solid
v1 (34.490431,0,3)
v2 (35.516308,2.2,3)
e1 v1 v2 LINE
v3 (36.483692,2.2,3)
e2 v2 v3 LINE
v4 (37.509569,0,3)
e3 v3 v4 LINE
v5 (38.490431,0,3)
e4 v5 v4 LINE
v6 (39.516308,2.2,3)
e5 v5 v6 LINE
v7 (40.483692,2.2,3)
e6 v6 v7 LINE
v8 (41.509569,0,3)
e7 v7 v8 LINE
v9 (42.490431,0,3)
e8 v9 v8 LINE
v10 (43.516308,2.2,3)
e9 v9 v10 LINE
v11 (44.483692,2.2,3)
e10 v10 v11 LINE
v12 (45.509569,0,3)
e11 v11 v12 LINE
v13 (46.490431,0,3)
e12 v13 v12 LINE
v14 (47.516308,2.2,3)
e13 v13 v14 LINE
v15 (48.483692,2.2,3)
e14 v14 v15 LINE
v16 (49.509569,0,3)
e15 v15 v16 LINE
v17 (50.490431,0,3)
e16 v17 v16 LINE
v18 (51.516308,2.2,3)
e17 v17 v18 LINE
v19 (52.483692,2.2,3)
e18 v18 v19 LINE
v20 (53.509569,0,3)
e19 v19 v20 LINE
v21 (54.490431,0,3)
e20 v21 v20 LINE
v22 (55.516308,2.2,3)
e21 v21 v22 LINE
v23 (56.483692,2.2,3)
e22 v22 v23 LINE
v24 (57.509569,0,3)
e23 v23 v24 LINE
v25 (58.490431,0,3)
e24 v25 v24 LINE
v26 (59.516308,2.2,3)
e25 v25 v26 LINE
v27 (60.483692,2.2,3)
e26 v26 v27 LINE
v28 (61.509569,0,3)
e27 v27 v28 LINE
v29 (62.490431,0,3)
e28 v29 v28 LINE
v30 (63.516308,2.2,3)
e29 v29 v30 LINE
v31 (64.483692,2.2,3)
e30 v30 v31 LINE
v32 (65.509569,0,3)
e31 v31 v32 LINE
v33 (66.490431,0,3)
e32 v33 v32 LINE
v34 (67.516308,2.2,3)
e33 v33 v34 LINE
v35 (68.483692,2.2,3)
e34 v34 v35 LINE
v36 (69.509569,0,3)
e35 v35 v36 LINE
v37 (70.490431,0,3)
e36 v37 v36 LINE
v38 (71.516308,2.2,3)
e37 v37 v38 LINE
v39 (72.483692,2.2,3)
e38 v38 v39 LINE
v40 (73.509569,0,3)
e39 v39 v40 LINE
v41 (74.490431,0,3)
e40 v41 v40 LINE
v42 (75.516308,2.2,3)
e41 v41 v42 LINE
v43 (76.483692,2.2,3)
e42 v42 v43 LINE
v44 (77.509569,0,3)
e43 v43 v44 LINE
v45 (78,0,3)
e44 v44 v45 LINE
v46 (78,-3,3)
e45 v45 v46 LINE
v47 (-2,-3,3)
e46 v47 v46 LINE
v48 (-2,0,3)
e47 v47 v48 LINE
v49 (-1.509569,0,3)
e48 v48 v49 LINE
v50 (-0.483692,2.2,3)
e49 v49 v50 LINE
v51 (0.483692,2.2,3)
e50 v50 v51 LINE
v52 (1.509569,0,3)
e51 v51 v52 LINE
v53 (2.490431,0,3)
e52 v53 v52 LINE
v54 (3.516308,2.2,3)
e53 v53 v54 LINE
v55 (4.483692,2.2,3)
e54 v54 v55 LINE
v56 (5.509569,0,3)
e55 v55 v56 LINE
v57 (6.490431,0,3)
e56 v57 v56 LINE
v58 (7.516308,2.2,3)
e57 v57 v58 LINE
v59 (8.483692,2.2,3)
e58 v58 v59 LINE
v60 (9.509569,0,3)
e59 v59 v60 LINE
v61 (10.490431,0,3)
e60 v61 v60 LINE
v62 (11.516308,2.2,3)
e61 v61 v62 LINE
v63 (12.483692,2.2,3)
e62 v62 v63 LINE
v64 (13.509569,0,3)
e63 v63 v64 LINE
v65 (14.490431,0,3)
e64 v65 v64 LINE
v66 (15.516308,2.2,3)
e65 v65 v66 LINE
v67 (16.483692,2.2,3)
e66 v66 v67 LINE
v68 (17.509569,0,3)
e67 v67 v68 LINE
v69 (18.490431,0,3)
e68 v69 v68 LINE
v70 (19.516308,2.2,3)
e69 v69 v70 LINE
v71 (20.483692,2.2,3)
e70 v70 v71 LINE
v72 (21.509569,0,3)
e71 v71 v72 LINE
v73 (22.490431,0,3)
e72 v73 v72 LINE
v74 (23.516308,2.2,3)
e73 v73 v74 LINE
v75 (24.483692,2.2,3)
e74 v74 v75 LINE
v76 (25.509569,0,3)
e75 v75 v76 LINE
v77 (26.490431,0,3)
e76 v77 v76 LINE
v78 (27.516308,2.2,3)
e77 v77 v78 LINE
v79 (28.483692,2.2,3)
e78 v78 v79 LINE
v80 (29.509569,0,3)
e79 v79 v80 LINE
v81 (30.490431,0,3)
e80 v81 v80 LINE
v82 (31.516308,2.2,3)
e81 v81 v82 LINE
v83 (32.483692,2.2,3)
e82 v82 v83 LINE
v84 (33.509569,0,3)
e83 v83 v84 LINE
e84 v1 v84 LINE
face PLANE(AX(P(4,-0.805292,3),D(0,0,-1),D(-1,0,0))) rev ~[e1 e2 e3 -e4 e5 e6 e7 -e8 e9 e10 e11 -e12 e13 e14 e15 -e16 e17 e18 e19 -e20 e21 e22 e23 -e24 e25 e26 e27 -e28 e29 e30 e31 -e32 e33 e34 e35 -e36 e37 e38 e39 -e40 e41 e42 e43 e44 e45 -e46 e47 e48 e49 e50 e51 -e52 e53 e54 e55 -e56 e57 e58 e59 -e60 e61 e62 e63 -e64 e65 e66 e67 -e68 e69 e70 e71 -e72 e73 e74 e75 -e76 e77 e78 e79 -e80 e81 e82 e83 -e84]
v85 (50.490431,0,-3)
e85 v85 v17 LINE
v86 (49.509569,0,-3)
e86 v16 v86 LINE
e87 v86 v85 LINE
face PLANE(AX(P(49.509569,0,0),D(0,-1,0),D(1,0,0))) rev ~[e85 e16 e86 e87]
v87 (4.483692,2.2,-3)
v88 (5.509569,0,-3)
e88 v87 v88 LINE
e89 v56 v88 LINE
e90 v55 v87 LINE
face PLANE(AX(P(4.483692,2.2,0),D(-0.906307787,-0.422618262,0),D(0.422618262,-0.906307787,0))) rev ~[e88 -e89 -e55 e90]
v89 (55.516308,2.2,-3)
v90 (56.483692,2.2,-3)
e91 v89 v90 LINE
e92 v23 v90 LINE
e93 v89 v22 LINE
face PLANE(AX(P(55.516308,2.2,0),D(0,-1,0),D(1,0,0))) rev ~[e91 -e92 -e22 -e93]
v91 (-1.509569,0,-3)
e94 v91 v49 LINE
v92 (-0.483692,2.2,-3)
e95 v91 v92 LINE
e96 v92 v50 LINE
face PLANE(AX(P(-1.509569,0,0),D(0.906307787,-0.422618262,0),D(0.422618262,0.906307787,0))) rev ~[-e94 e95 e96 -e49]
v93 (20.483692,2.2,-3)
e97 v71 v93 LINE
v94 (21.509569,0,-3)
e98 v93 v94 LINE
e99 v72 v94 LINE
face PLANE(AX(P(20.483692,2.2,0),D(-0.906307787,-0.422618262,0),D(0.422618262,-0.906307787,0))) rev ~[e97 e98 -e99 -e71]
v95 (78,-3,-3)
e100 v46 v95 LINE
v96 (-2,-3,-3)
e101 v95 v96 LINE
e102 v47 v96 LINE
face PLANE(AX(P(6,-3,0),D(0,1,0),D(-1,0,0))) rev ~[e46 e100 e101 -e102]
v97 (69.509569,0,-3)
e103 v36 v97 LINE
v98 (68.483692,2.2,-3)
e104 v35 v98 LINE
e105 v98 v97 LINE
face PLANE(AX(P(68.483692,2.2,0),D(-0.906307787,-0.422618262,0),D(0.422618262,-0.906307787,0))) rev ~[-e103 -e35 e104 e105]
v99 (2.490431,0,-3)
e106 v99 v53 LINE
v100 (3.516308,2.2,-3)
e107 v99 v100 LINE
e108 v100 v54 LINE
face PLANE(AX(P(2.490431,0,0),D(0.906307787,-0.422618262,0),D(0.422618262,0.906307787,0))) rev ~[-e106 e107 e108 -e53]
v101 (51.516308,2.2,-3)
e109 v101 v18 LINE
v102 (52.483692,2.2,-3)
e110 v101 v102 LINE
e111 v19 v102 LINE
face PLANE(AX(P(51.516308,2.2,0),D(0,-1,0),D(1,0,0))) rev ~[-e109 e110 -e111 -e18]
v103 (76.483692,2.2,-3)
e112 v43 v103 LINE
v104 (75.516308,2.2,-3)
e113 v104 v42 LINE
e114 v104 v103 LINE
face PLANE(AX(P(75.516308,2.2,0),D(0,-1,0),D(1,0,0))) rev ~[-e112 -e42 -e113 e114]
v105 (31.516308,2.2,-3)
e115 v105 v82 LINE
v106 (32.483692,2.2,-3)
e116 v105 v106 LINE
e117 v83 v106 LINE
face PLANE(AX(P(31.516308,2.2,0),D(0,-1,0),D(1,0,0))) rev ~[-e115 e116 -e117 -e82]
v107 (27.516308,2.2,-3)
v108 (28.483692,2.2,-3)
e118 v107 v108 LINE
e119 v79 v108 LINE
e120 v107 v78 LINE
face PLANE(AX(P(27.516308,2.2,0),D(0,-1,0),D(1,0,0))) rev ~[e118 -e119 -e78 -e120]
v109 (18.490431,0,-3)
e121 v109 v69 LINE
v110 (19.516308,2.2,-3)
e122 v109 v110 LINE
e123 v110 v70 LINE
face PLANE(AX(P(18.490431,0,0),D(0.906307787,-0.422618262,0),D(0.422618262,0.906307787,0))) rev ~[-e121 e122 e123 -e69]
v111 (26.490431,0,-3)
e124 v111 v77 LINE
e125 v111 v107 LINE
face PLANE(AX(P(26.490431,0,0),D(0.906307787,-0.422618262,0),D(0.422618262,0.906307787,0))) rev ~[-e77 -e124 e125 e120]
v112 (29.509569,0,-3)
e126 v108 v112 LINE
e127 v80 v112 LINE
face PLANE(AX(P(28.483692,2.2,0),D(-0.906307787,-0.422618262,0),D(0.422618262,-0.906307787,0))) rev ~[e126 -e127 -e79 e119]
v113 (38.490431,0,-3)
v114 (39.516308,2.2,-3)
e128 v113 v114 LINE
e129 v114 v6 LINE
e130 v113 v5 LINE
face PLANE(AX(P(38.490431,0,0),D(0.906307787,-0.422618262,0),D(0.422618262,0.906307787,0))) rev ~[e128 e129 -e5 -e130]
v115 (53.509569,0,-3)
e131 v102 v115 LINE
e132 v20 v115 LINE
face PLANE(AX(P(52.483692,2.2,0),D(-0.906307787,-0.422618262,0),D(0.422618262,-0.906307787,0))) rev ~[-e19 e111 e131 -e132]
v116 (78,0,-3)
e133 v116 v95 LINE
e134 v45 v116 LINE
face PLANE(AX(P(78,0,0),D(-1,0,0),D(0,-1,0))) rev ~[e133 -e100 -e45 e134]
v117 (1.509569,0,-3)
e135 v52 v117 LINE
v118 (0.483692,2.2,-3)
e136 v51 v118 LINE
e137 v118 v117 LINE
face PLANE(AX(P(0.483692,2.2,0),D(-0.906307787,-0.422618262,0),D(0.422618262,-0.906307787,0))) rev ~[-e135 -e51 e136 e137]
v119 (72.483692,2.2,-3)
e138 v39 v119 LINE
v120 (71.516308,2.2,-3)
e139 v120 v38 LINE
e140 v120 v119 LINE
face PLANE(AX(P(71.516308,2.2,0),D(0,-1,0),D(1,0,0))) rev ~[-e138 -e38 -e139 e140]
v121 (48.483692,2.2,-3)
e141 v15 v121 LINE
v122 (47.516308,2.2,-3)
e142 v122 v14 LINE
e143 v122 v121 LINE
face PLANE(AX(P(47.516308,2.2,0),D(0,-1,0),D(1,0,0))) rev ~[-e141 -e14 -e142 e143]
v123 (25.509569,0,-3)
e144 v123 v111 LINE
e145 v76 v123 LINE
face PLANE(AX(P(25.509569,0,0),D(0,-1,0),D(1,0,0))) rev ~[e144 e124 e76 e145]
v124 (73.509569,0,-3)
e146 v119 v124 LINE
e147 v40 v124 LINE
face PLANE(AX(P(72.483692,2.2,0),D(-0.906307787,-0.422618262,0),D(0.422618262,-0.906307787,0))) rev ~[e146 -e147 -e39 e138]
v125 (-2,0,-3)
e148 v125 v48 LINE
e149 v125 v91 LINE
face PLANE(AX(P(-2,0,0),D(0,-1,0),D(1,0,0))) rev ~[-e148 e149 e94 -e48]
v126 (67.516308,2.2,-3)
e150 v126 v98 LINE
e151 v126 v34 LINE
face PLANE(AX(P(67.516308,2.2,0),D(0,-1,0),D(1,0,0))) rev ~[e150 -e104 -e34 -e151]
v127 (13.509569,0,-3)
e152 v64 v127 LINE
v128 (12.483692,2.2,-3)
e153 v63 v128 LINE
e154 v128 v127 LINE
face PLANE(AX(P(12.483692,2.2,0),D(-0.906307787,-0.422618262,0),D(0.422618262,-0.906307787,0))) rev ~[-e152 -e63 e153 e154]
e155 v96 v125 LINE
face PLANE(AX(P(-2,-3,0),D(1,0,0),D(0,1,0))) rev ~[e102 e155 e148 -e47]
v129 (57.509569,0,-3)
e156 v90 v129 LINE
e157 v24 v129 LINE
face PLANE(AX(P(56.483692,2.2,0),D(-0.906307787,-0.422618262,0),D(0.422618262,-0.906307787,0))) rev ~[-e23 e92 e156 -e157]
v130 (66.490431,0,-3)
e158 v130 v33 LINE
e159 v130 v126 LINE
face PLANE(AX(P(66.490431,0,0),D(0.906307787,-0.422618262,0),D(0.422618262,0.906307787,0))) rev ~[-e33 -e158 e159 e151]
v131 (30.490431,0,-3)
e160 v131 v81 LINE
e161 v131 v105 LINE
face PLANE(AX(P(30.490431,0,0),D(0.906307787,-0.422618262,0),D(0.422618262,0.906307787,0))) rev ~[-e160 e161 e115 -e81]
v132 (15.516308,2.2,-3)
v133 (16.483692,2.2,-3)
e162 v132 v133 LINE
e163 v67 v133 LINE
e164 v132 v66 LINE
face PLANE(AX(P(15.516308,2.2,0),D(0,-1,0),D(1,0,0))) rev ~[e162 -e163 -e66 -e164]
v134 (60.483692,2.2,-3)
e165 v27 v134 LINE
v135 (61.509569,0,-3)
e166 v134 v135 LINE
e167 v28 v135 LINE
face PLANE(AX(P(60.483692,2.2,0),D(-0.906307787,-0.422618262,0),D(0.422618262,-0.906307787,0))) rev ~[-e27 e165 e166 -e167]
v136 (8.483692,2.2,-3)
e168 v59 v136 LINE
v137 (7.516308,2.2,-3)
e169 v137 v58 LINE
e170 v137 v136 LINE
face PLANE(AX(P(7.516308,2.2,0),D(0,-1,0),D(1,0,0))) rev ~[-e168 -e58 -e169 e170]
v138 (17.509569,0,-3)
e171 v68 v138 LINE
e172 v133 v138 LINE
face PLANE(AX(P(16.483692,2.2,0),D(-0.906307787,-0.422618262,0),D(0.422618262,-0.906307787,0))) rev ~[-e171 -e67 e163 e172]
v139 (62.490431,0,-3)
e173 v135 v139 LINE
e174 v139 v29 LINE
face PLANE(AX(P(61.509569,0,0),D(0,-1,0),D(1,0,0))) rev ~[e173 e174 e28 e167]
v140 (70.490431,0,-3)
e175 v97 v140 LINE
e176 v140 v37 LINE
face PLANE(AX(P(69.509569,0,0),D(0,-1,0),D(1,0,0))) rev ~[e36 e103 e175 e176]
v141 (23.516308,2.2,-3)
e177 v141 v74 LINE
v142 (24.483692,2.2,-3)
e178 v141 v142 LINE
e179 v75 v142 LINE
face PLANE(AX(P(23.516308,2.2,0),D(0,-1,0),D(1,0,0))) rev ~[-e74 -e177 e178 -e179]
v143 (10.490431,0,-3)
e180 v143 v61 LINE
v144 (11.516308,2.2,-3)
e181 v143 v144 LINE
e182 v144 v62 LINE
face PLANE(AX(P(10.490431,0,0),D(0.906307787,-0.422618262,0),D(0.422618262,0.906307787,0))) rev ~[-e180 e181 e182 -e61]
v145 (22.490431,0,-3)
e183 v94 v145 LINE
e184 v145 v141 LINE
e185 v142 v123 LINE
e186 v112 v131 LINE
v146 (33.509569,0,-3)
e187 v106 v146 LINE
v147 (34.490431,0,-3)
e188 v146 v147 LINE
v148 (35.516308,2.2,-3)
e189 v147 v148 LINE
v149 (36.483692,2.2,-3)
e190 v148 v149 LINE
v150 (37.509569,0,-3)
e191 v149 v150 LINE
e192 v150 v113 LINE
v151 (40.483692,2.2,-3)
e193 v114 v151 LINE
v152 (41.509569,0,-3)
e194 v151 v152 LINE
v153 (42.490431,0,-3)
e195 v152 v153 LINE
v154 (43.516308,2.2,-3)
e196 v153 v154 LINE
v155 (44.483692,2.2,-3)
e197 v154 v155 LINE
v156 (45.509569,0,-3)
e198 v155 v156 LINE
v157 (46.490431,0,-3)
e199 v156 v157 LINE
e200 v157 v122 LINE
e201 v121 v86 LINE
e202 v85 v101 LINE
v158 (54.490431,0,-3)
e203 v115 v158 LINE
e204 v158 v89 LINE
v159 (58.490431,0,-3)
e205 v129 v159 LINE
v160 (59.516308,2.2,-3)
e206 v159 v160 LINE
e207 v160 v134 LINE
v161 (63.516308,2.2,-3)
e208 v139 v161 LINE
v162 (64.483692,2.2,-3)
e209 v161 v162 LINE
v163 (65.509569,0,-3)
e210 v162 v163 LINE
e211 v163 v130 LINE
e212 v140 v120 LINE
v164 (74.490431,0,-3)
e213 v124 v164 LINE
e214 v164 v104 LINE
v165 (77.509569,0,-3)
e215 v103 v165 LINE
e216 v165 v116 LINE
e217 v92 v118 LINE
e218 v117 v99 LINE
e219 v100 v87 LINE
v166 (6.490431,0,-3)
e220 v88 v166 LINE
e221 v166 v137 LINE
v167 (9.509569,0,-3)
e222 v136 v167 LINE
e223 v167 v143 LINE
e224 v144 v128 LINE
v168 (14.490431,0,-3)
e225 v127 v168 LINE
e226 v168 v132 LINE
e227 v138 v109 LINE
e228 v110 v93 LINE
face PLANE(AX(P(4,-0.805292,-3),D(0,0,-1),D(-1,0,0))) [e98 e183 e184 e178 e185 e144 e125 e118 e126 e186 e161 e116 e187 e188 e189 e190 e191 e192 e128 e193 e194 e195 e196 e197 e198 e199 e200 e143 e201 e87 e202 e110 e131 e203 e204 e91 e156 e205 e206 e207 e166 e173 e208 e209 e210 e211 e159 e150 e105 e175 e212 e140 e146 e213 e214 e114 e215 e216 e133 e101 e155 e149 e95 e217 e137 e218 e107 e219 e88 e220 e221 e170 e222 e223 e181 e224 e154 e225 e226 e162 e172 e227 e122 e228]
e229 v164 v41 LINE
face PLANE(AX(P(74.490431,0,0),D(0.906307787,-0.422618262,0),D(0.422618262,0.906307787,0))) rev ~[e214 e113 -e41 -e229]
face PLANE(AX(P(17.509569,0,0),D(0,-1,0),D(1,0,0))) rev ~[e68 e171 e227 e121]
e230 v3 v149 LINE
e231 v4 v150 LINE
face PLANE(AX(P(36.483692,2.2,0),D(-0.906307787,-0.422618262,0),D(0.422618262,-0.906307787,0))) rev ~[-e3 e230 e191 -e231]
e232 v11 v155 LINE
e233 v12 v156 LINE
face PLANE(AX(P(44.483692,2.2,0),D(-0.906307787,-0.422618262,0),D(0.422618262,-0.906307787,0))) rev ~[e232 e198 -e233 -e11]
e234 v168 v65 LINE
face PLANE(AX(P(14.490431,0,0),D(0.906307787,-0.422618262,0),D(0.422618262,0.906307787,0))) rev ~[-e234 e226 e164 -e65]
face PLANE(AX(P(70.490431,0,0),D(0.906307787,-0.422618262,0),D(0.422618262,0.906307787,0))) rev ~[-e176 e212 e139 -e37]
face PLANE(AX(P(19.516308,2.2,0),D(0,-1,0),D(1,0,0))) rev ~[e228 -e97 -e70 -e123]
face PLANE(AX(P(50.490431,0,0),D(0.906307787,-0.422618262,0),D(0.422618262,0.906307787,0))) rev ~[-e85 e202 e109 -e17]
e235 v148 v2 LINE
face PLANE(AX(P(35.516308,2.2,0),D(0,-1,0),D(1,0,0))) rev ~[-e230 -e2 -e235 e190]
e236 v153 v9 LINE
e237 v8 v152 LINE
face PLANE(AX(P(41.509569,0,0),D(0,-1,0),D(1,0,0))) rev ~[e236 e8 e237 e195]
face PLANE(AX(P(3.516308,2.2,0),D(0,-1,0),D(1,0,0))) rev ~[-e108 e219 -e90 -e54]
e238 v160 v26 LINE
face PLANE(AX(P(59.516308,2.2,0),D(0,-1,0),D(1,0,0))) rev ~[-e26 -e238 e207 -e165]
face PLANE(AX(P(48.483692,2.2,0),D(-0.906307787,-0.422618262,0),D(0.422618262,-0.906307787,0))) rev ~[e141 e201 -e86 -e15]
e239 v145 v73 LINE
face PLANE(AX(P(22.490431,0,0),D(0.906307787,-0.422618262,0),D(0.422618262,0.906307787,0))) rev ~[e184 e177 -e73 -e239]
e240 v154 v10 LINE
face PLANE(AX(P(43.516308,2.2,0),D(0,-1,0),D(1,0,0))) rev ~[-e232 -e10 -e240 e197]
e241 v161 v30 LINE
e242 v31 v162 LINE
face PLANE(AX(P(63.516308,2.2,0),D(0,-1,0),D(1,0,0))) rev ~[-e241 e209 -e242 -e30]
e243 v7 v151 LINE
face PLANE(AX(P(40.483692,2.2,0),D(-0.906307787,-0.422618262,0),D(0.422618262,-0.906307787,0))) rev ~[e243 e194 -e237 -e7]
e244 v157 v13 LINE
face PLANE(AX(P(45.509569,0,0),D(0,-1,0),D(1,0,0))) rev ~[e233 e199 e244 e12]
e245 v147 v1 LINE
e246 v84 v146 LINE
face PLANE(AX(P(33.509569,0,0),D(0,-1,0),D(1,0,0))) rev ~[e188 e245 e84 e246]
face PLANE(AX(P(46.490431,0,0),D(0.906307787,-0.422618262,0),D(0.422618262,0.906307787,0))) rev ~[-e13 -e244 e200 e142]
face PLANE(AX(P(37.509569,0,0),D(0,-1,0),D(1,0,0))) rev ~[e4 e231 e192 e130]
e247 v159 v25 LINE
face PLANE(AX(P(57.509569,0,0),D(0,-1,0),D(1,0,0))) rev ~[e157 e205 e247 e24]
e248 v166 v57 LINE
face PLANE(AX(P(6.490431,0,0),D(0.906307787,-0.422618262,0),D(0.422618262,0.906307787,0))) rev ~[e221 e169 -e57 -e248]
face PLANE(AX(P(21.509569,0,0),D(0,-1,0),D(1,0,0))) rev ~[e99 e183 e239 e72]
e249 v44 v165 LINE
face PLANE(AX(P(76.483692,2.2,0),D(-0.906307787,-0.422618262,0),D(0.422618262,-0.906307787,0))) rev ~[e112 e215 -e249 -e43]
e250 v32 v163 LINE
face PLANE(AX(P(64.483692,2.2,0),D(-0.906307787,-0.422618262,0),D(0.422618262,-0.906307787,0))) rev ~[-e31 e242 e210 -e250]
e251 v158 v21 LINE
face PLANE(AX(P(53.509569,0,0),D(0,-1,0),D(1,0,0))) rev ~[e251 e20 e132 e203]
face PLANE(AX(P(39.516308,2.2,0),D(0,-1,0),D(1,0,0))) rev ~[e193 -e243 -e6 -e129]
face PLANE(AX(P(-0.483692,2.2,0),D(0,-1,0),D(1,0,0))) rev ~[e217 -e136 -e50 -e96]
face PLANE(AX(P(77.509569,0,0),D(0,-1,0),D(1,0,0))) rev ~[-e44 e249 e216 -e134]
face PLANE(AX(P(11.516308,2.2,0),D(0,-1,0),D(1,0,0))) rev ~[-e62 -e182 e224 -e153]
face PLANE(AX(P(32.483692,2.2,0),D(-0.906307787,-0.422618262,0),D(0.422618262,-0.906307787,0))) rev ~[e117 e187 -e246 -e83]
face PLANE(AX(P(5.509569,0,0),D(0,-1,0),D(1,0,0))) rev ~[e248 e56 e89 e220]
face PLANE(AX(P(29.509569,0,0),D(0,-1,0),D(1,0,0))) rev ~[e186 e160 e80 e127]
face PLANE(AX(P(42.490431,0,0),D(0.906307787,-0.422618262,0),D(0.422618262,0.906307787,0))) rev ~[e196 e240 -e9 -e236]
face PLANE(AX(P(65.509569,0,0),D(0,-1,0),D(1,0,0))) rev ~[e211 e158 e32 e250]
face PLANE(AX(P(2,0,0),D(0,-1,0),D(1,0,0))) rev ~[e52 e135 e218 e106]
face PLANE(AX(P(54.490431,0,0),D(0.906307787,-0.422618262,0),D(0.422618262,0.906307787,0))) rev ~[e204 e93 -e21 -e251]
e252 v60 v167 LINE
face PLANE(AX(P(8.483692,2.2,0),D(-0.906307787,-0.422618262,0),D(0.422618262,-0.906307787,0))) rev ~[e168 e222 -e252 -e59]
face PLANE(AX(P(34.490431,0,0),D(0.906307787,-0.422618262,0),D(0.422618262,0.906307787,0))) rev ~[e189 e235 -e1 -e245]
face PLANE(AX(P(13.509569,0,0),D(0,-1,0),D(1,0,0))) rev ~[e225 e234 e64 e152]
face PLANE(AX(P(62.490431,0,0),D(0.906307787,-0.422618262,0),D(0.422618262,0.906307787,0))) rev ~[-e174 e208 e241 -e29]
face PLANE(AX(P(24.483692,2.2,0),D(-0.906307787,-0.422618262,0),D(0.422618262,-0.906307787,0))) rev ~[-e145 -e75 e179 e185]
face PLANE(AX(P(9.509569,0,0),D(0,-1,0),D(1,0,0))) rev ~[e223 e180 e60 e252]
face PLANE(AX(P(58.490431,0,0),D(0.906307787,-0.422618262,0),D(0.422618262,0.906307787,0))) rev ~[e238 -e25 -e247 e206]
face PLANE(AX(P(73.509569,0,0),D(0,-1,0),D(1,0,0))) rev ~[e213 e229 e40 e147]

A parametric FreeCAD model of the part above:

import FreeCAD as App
import Part
import Sketcher
from FreeCAD import Vector
Q = App.Units.Quantity


def add_polygon(sketch, points):
    """Adds a closed chain of lines whose ends are joined by coincident constraints."""
    first, n = sketch.GeometryCount, len(points)
    for a, b in zip(points, points[1:] + points[:1]):
        sketch.addGeometry(Part.LineSegment(App.Vector(*a, 0), App.Vector(*b, 0)), False)
    for i in range(n):
        sketch.addConstraint(Sketcher.Constraint("Coincident", first + i, 2, first + (i + 1) % n, 1))

doc = App.newDocument("Part")
body = doc.addObject("PartDesign::Body", "Body")

# Sketch on XY plane
sketch1 = doc.addObject("Sketcher::SketchObject", "Sketch")
body.addObject(sketch1)
sketch1.AttachmentSupport = (doc.XY_Plane, [""])
sketch1.MapMode = "FlatFace"
add_polygon(sketch1, [(0.483692, 2.2), (-0.483692, 2.2), (-1.509569, 0), (-2, 0), (-2, -3), (2, -3), (2, 0), (1.509569, 0)])  # lines 0-7
sketch1.addConstraint(Sketcher.Constraint("Horizontal", 0))
sketch1.addConstraint(Sketcher.Constraint("Horizontal", 2))
sketch1.addConstraint(Sketcher.Constraint("Vertical", 3))
sketch1.addConstraint(Sketcher.Constraint("Horizontal", 4))
sketch1.addConstraint(Sketcher.Constraint("Vertical", 5))
sketch1.addConstraint(Sketcher.Constraint("Horizontal", 6))
sketch1.addConstraint(Sketcher.Constraint("Symmetric", 2, 2, 5, 2, -1, 1))
sketch1.addConstraint(Sketcher.Constraint("Symmetric", 1, 2, 6, 2, -2))
sketch1.addConstraint(Sketcher.Constraint("Equal", 1, 7))
sketch1.addConstraint(Sketcher.Constraint("DistanceX", 4, 1, 4, 2, Q("4 mm")))
sketch1.addConstraint(Sketcher.Constraint("DistanceY", 3, 2, 3, 1, Q("3 mm")))
sketch1.addConstraint(Sketcher.Constraint("Angle", 1, Q("-115 deg")))
sketch1.addConstraint(Sketcher.Constraint("DistanceY", -1, 1, 0, 2, Q("2.2 mm")))
sketch1.addConstraint(Sketcher.Constraint("DistanceX", 2, 2, 2, 1, Q("0.490431 mm")))
pad1 = doc.addObject("PartDesign::Pad", "Pad")
body.addObject(pad1)
pad1.Profile = sketch1
pad1.Length = 6
pad1.Midplane = True
doc.recompute()

linearpattern = doc.addObject("PartDesign::LinearPattern", "LinearPattern")
body.addObject(linearpattern)
linearpattern.Originals = [pad1]
linearpattern.Direction = (doc.X_Axis, [""])
linearpattern.Mode = "offset"
linearpattern.Offset = 4
linearpattern.Occurrences = 20
body.Tip = linearpattern

doc.recompute()
